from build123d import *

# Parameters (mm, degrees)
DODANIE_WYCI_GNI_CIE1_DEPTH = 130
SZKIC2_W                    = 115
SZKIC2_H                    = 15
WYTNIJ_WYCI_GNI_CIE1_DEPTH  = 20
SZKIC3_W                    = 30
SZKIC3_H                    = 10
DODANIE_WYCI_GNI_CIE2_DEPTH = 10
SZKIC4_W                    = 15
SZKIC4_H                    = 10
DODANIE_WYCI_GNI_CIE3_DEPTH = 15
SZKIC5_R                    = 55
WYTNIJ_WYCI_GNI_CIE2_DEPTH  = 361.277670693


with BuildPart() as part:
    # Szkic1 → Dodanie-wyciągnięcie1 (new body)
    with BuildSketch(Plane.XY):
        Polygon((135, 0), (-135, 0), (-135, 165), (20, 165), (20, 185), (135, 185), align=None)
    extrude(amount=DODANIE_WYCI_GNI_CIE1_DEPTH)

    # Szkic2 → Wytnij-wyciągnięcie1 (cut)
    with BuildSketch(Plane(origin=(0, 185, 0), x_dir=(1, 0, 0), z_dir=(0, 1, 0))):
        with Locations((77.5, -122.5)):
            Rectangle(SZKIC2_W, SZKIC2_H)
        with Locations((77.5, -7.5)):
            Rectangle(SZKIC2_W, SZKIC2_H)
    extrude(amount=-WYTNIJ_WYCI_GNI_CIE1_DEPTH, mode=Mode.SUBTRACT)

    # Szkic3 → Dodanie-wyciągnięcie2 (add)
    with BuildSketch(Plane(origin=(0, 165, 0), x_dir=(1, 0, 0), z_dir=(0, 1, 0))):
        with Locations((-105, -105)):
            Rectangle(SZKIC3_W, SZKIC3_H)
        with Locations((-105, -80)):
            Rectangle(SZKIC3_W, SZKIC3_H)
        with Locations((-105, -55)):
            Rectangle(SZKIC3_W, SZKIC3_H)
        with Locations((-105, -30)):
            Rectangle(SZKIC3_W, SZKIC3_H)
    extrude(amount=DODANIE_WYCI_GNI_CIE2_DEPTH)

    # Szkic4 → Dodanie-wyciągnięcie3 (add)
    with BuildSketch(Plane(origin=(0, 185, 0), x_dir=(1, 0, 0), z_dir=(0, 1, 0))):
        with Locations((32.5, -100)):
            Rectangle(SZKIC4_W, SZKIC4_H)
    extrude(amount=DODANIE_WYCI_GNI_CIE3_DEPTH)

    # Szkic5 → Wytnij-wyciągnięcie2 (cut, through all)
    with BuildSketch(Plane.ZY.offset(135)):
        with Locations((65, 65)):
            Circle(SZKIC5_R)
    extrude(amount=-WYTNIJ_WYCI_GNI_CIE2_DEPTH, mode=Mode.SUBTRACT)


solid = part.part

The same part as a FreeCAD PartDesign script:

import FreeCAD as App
import Part
import Sketcher

V = App.Vector

doc = App.newDocument("Part")
params = doc.addObject("Spreadsheet::Sheet", "Params")
for row, (alias, value) in enumerate([
    ("sketch1_width", "270 mm"),
    ("sketch1_width2", "115 mm"),
    ("sketch1_height", "185 mm"),
    ("sketch1_height2", "20 mm"),
    ("pad1_length", "130 mm"),
    ("sketch2_width", "115 mm"),
    ("sketch2_height", "15 mm"),
    ("pocket1_length", "20 mm"),
    ("sketch3_width", "30 mm"),
    ("sketch3_height", "10 mm"),
    ("pad2_length", "10 mm"),
    ("sketch4_width", "15 mm"),
    ("sketch4_height", "10 mm"),
    ("pad3_length", "15 mm"),
    ("sketch5_diameter", "110 mm"),
], start=1):
    params.set(f"A{row}", alias)
    params.set(f"B{row}", "=" + value)
    params.setAlias(f"B{row}", alias)

body = doc.addObject("PartDesign::Body", "Body")

sketch1 = body.newObject("Sketcher::SketchObject", "Sketch")
sketch1.AttachmentSupport = (doc.getObject("XY_Plane"), [""])
sketch1.MapMode = "FlatFace"
sketch1.addGeometry(Part.LineSegment(V(-135, 0, 0), V(135, 0, 0)), False)
sketch1.addGeometry(Part.LineSegment(V(135, 0, 0), V(135, 185, 0)), False)
sketch1.addGeometry(Part.LineSegment(V(135, 185, 0), V(20, 185, 0)), False)
sketch1.addGeometry(Part.LineSegment(V(20, 185, 0), V(20, 165, 0)), False)
sketch1.addGeometry(Part.LineSegment(V(20, 165, 0), V(-135, 165, 0)), False)
sketch1.addGeometry(Part.LineSegment(V(-135, 165, 0), V(-135, 0, 0)), False)
sketch1.addConstraint(Sketcher.Constraint("Coincident", 0, 2, 1, 1))
sketch1.addConstraint(Sketcher.Constraint("Coincident", 1, 2, 2, 1))
sketch1.addConstraint(Sketcher.Constraint("Coincident", 2, 2, 3, 1))
sketch1.addConstraint(Sketcher.Constraint("Coincident", 3, 2, 4, 1))
sketch1.addConstraint(Sketcher.Constraint("Coincident", 4, 2, 5, 1))
sketch1.addConstraint(Sketcher.Constraint("Coincident", 5, 2, 0, 1))
sketch1.addConstraint(Sketcher.Constraint("Horizontal", 0))
sketch1.addConstraint(Sketcher.Constraint("Vertical", 1))
sketch1.addConstraint(Sketcher.Constraint("Horizontal", 2))
sketch1.addConstraint(Sketcher.Constraint("Vertical", 3))
sketch1.addConstraint(Sketcher.Constraint("Horizontal", 4))
sketch1.addConstraint(Sketcher.Constraint("Vertical", 5))
sketch1.addConstraint(Sketcher.Constraint("Symmetric", 0, 2, 5, 2, -1, 1))
sketch1.addConstraint(Sketcher.Constraint("DistanceX", 0, 1, 0, 2, 270.0))
sketch1.addConstraint(Sketcher.Constraint("DistanceX", 2, 2, 2, 1, 115.0))
sketch1.addConstraint(Sketcher.Constraint("DistanceY", 1, 1, 1, 2, 185.0))
sketch1.addConstraint(Sketcher.Constraint("DistanceY", 3, 2, 3, 1, 20.0))
sketch1.setExpression("Constraints[13]", "Params.sketch1_width")
sketch1.setExpression("Constraints[14]", "Params.sketch1_width2")
sketch1.setExpression("Constraints[15]", "Params.sketch1_height")
sketch1.setExpression("Constraints[16]", "Params.sketch1_height2")
pad1 = body.newObject("PartDesign::Pad", "Pad")
pad1.Profile = sketch1
pad1.setExpression("Length", "Params.pad1_length")

sketch2 = body.newObject("Sketcher::SketchObject", "Sketch001")
sketch2.AttachmentSupport = (doc.getObject("XZ_Plane"), [""])
sketch2.MapMode = "FlatFace"
sketch2.AttachmentOffset = App.Placement(V(0, 0, -185), App.Rotation())
sketch2.addGeometry(Part.LineSegment(V(20, 115, 0), V(20, 130, 0)), False)
sketch2.addGeometry(Part.LineSegment(V(20, 130, 0), V(135, 130, 0)), False)
sketch2.addGeometry(Part.LineSegment(V(135, 130, 0), V(135, 115, 0)), False)
sketch2.addGeometry(Part.LineSegment(V(135, 115, 0), V(20, 115, 0)), False)
sketch2.addGeometry(Part.LineSegment(V(20, 0, 0), V(20, 15, 0)), False)
sketch2.addGeometry(Part.LineSegment(V(20, 15, 0), V(135, 15, 0)), False)
sketch2.addGeometry(Part.LineSegment(V(135, 15, 0), V(135, 0, 0)), False)
sketch2.addGeometry(Part.LineSegment(V(135, 0, 0), V(20, 0, 0)), False)
sketch2.addConstraint(Sketcher.Constraint("Coincident", 0, 2, 1, 1))
sketch2.addConstraint(Sketcher.Constraint("Coincident", 1, 2, 2, 1))
sketch2.addConstraint(Sketcher.Constraint("Coincident", 2, 2, 3, 1))
sketch2.addConstraint(Sketcher.Constraint("Coincident", 3, 2, 0, 1))
sketch2.addConstraint(Sketcher.Constraint("Coincident", 4, 2, 5, 1))
sketch2.addConstraint(Sketcher.Constraint("Coincident", 5, 2, 6, 1))
sketch2.addConstraint(Sketcher.Constraint("Coincident", 6, 2, 7, 1))
sketch2.addConstraint(Sketcher.Constraint("Coincident", 7, 2, 4, 1))
sketch2.addConstraint(Sketcher.Constraint("Vertical", 0))
sketch2.addConstraint(Sketcher.Constraint("Horizontal", 1))
sketch2.addConstraint(Sketcher.Constraint("Vertical", 2))
sketch2.addConstraint(Sketcher.Constraint("Horizontal", 3))
sketch2.addConstraint(Sketcher.Constraint("Vertical", 4))
sketch2.addConstraint(Sketcher.Constraint("Horizontal", 5))
sketch2.addConstraint(Sketcher.Constraint("Vertical", 6))
sketch2.addConstraint(Sketcher.Constraint("Horizontal", 7))
sketch2.addConstraint(Sketcher.Constraint("PointOnObject", 6, 2, -1))
sketch2.addConstraint(Sketcher.Constraint("Vertical", 3, 2, 4, 2))
sketch2.addConstraint(Sketcher.Constraint("Vertical", 2, 2, 5, 2))
sketch2.addConstraint(Sketcher.Constraint("Equal", 2, 4))
sketch2.addConstraint(Sketcher.Constraint("DistanceX", 1, 1, 1, 2, 115.0))
sketch2.addConstraint(Sketcher.Constraint("DistanceY", 0, 1, 0, 2, 15.0))
sketch2.addConstraint(Sketcher.Constraint("DistanceX", -1, 1, 0, 2, 20.0))
sketch2.addConstraint(Sketcher.Constraint("DistanceY", -1, 1, 0, 2, 130.0))
sketch2.setExpression("Constraints[20]", "Params.sketch2_width")
sketch2.setExpression("Constraints[21]", "Params.sketch2_height")
pocket1 = body.newObject("PartDesign::Pocket", "Pocket")
pocket1.Profile = sketch2
pocket1.setExpression("Length", "Params.pocket1_length")
pocket1.Reversed = True

sketch3 = body.newObject("Sketcher::SketchObject", "Sketch002")
sketch3.AttachmentSupport = (doc.getObject("XZ_Plane"), [""])
sketch3.MapMode = "FlatFace"
sketch3.AttachmentOffset = App.Placement(V(0, 0, -165), App.Rotation())
sketch3.addGeometry(Part.LineSegment(V(-120, 100, 0), V(-120, 110, 0)), False)
sketch3.addGeometry(Part.LineSegment(V(-120, 110, 0), V(-90, 110, 0)), False)
sketch3.addGeometry(Part.LineSegment(V(-90, 110, 0), V(-90, 100, 0)), False)
sketch3.addGeometry(Part.LineSegment(V(-90, 100, 0), V(-120, 100, 0)), False)
sketch3.addGeometry(Part.LineSegment(V(-120, 75, 0), V(-120, 85, 0)), False)
sketch3.addGeometry(Part.LineSegment(V(-120, 85, 0), V(-90, 85, 0)), False)
sketch3.addGeometry(Part.LineSegment(V(-90, 85, 0), V(-90, 75, 0)), False)
sketch3.addGeometry(Part.LineSegment(V(-90, 75, 0), V(-120, 75, 0)), False)
sketch3.addGeometry(Part.LineSegment(V(-120, 50, 0), V(-120, 60, 0)), False)
sketch3.addGeometry(Part.LineSegment(V(-120, 60, 0), V(-90, 60, 0)), False)
sketch3.addGeometry(Part.LineSegment(V(-90, 60, 0), V(-90, 50, 0)), False)
sketch3.addGeometry(Part.LineSegment(V(-90, 50, 0), V(-120, 50, 0)), False)
sketch3.addGeometry(Part.LineSegment(V(-120, 25, 0), V(-120, 35, 0)), False)
sketch3.addGeometry(Part.LineSegment(V(-120, 35, 0), V(-90, 35, 0)), False)
sketch3.addGeometry(Part.LineSegment(V(-90, 35, 0), V(-90, 25, 0)), False)
sketch3.addGeometry(Part.LineSegment(V(-90, 25, 0), V(-120, 25, 0)), False)
sketch3.addConstraint(Sketcher.Constraint("Coincident", 0, 2, 1, 1))
sketch3.addConstraint(Sketcher.Constraint("Coincident", 1, 2, 2, 1))
sketch3.addConstraint(Sketcher.Constraint("Coincident", 2, 2, 3, 1))
sketch3.addConstraint(Sketcher.Constraint("Coincident", 3, 2, 0, 1))
sketch3.addConstraint(Sketcher.Constraint("Coincident", 4, 2, 5, 1))
sketch3.addConstraint(Sketcher.Constraint("Coincident", 5, 2, 6, 1))
sketch3.addConstraint(Sketcher.Constraint("Coincident", 6, 2, 7, 1))
sketch3.addConstraint(Sketcher.Constraint("Coincident", 7, 2, 4, 1))
sketch3.addConstraint(Sketcher.Constraint("Coincident", 8, 2, 9, 1))
sketch3.addConstraint(Sketcher.Constraint("Coincident", 9, 2, 10, 1))
sketch3.addConstraint(Sketcher.Constraint("Coincident", 10, 2, 11, 1))
sketch3.addConstraint(Sketcher.Constraint("Coincident", 11, 2, 8, 1))
sketch3.addConstraint(Sketcher.Constraint("Coincident", 12, 2, 13, 1))
sketch3.addConstraint(Sketcher.Constraint("Coincident", 13, 2, 14, 1))
sketch3.addConstraint(Sketcher.Constraint("Coincident", 14, 2, 15, 1))
sketch3.addConstraint(Sketcher.Constraint("Coincident", 15, 2, 12, 1))
sketch3.addConstraint(Sketcher.Constraint("Vertical", 0))
sketch3.addConstraint(Sketcher.Constraint("Horizontal", 1))
sketch3.addConstraint(Sketcher.Constraint("Vertical", 2))
sketch3.addConstraint(Sketcher.Constraint("Horizontal", 3))
sketch3.addConstraint(Sketcher.Constraint("Vertical", 4))
sketch3.addConstraint(Sketcher.Constraint("Horizontal", 5))
sketch3.addConstraint(Sketcher.Constraint("Vertical", 6))
sketch3.addConstraint(Sketcher.Constraint("Horizontal", 7))
sketch3.addConstraint(Sketcher.Constraint("Vertical", 8))
sketch3.addConstraint(Sketcher.Constraint("Horizontal", 9))
sketch3.addConstraint(Sketcher.Constraint("Vertical", 10))
sketch3.addConstraint(Sketcher.Constraint("Horizontal", 11))
sketch3.addConstraint(Sketcher.Constraint("Vertical", 12))
sketch3.addConstraint(Sketcher.Constraint("Horizontal", 13))
sketch3.addConstraint(Sketcher.Constraint("Vertical", 14))
sketch3.addConstraint(Sketcher.Constraint("Horizontal", 15))
sketch3.addConstraint(Sketcher.Constraint("Vertical", 3, 2, 4, 2))
sketch3.addConstraint(Sketcher.Constraint("Vertical", 2, 2, 5, 2))
sketch3.addConstraint(Sketcher.Constraint("Vertical", 7, 2, 8, 2))
sketch3.addConstraint(Sketcher.Constraint("Vertical", 6, 2, 9, 2))
sketch3.addConstraint(Sketcher.Constraint("Vertical", 11, 2, 12, 2))
sketch3.addConstraint(Sketcher.Constraint("Vertical", 10, 2, 13, 2))
sketch3.addConstraint(Sketcher.Constraint("Equal", 2, 4))
sketch3.addConstraint(Sketcher.Constraint("Equal", 6, 8))
sketch3.addConstraint(Sketcher.Constraint("Equal", 10, 12))
sketch3.addConstraint(Sketcher.Constraint("DistanceX", 1, 1, 1, 2, 30.0))
sketch3.addConstraint(Sketcher.Constraint("DistanceY", 0, 1, 0, 2, 10.0))
sketch3.addConstraint(Sketcher.Constraint("DistanceX", 0, 2, -1, 1, 120.0))
sketch3.addConstraint(Sketcher.Constraint("DistanceY", -1, 1, 0, 2, 110.0))
sketch3.addConstraint(Sketcher.Constraint("DistanceY", -1, 1, 4, 2, 85.0))
sketch3.addConstraint(Sketcher.Constraint("DistanceY", -1, 1, 8, 2, 60.0))
sketch3.addConstraint(Sketcher.Constraint("DistanceY", -1, 1, 12, 2, 35.0))
sketch3.setExpression("Constraints[41]", "Params.sketch3_width")
sketch3.setExpression("Constraints[42]", "Params.sketch3_height")
pad2 = body.newObject("PartDesign::Pad", "Pad001")
pad2.Profile = sketch3
pad2.setExpression("Length", "Params.pad2_length")
pad2.Reversed = True

sketch4 = body.newObject("Sketcher::SketchObject", "Sketch003")
sketch4.AttachmentSupport = (doc.getObject("XZ_Plane"), [""])
sketch4.MapMode = "FlatFace"
sketch4.AttachmentOffset = App.Placement(V(0, 0, -185), App.Rotation())
sketch4.addGeometry(Part.LineSegment(V(25, 95, 0), V(25, 105, 0)), False)
sketch4.addGeometry(Part.LineSegment(V(25, 105, 0), V(40, 105, 0)), False)
sketch4.addGeometry(Part.LineSegment(V(40, 105, 0), V(40, 95, 0)), False)
sketch4.addGeometry(Part.LineSegment(V(40, 95, 0), V(25, 95, 0)), False)
sketch4.addConstraint(Sketcher.Constraint("Coincident", 0, 2, 1, 1))
sketch4.addConstraint(Sketcher.Constraint("Coincident", 1, 2, 2, 1))
sketch4.addConstraint(Sketcher.Constraint("Coincident", 2, 2, 3, 1))
sketch4.addConstraint(Sketcher.Constraint("Coincident", 3, 2, 0, 1))
sketch4.addConstraint(Sketcher.Constraint("Vertical", 0))
sketch4.addConstraint(Sketcher.Constraint("Horizontal", 1))
sketch4.addConstraint(Sketcher.Constraint("Vertical", 2))
sketch4.addConstraint(Sketcher.Constraint("Horizontal", 3))
sketch4.addConstraint(Sketcher.Constraint("DistanceX", 1, 1, 1, 2, 15.0))
sketch4.addConstraint(Sketcher.Constraint("DistanceY", 0, 1, 0, 2, 10.0))
sketch4.addConstraint(Sketcher.Constraint("DistanceX", -1, 1, 0, 2, 25.0))
sketch4.addConstraint(Sketcher.Constraint("DistanceY", -1, 1, 0, 2, 105.0))
sketch4.setExpression("Constraints[8]", "Params.sketch4_width")
sketch4.setExpression("Constraints[9]", "Params.sketch4_height")
pad3 = body.newObject("PartDesign::Pad", "Pad002")
pad3.Profile = sketch4
pad3.setExpression("Length", "Params.pad3_length")
pad3.Reversed = True

sketch5 = body.newObject("Sketcher::SketchObject", "Sketch004")
sketch5.AttachmentSupport = (doc.getObject("YZ_Plane"), [""])
sketch5.MapMode = "FlatFace"
sketch5.AttachmentOffset = App.Placement(V(0, 0, -135), App.Rotation())
sketch5.addGeometry(Part.Circle(V(65, 65, 0), V(0, 0, 1), 55), False)
sketch5.addConstraint(Sketcher.Constraint("Diameter", 0, 110.0))
sketch5.addConstraint(Sketcher.Constraint("DistanceX", -1, 1, 0, 3, 65.0))
sketch5.addConstraint(Sketcher.Constraint("DistanceY", -1, 1, 0, 3, 65.0))
sketch5.setExpression("Constraints[0]", "Params.sketch5_diameter")
pocket2 = body.newObject("PartDesign::Pocket", "Pocket001")
pocket2.Profile = sketch5
pocket2.Type = "ThroughAll"
pocket2.Reversed = True

doc.recompute()
